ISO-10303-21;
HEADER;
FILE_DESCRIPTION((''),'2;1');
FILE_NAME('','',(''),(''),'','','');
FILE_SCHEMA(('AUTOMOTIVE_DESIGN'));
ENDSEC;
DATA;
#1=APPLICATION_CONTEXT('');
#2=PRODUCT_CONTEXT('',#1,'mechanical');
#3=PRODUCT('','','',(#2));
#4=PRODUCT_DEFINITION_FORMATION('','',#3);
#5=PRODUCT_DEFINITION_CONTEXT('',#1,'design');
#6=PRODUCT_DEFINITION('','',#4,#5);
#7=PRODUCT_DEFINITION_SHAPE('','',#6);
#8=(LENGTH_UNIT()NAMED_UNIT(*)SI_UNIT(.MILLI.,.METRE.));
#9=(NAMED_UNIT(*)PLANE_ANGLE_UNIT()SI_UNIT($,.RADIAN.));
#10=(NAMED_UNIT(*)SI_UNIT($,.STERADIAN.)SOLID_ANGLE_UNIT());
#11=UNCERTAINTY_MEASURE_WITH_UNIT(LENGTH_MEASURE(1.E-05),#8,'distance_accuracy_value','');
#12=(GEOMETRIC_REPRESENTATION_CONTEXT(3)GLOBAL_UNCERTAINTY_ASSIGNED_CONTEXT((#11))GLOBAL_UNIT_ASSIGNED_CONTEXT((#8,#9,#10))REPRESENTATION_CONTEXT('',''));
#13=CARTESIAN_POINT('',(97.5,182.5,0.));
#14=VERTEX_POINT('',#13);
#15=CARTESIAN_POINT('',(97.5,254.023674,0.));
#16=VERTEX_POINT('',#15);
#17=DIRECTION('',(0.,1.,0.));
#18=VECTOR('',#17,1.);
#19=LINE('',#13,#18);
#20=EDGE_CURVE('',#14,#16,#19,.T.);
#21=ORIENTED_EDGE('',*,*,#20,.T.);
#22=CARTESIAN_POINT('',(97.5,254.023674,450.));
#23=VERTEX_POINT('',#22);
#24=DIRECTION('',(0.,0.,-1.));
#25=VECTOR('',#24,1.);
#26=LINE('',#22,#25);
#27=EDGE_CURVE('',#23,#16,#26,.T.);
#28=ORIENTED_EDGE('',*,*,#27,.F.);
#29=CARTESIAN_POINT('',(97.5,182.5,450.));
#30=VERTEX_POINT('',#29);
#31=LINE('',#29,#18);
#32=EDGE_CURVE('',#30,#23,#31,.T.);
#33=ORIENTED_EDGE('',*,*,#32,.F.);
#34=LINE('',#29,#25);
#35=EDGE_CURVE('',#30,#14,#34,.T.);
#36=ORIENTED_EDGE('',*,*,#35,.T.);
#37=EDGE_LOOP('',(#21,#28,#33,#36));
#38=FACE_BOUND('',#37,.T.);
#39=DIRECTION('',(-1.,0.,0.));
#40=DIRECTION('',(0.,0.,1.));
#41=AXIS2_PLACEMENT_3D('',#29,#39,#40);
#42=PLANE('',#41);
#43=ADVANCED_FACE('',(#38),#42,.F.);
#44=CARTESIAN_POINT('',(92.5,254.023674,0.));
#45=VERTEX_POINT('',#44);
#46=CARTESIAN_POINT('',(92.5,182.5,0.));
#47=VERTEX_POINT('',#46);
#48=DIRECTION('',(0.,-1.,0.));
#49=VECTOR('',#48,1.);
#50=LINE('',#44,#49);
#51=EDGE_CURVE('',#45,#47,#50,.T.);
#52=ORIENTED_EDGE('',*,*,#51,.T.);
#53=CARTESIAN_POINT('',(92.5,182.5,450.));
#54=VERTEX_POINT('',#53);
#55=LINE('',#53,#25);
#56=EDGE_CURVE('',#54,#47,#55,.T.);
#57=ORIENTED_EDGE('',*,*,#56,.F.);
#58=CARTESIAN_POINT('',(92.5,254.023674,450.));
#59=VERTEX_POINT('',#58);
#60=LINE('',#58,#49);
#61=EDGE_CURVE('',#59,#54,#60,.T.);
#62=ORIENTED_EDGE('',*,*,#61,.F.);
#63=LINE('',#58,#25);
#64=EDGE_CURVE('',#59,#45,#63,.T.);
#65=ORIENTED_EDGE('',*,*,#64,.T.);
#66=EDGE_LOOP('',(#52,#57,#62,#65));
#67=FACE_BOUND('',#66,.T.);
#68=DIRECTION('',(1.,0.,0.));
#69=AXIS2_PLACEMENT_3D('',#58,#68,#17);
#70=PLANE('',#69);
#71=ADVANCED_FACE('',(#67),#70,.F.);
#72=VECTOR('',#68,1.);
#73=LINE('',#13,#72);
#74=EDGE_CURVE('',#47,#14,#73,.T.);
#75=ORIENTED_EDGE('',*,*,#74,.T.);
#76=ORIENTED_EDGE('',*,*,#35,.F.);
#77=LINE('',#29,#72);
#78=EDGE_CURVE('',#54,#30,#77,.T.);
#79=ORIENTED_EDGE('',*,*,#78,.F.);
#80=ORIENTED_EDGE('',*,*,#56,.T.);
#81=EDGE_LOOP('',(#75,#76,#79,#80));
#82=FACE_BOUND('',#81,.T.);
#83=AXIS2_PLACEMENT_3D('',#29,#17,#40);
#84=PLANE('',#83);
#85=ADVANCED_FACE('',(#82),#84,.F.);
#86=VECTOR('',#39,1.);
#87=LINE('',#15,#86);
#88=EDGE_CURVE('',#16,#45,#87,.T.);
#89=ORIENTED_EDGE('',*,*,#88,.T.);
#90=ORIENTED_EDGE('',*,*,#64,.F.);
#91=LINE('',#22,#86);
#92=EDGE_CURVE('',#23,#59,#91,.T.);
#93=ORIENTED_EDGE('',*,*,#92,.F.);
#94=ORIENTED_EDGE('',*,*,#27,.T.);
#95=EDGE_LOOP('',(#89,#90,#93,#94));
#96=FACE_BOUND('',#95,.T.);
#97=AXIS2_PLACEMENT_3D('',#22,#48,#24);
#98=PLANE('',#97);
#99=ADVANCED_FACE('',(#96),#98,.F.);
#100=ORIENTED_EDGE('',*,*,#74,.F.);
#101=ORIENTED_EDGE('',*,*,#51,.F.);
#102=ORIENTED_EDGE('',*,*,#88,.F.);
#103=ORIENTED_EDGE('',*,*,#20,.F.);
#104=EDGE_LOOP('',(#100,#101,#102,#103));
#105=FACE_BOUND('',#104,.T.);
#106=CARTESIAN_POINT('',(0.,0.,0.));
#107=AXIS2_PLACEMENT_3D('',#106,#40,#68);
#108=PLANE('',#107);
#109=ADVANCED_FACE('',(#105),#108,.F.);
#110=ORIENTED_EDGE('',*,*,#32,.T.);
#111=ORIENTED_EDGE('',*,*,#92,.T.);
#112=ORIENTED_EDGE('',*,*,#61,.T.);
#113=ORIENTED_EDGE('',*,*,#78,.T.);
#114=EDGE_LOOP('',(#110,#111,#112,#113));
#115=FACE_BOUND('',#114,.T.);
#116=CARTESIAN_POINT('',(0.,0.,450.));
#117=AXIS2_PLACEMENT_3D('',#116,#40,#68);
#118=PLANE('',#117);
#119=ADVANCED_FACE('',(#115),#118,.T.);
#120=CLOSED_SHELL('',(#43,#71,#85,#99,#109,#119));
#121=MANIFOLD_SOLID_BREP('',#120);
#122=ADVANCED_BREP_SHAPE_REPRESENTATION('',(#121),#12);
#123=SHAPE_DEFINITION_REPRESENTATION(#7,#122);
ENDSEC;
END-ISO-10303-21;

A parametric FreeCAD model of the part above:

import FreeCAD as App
import Part
import Sketcher
Q = App.Units.Quantity


def add_polygon(sketch, points):
    """Adds a closed chain of lines whose ends are joined by coincident constraints."""
    first, n = sketch.GeometryCount, len(points)
    for a, b in zip(points, points[1:] + points[:1]):
        sketch.addGeometry(Part.LineSegment(App.Vector(*a, 0), App.Vector(*b, 0)), False)
    for i in range(n):
        sketch.addConstraint(Sketcher.Constraint("Coincident", first + i, 2, first + (i + 1) % n, 1))

doc = App.newDocument("Part")
body = doc.addObject("PartDesign::Body", "Body")

# Sketch on XY plane
sketch1 = doc.addObject("Sketcher::SketchObject", "Sketch")
body.addObject(sketch1)
sketch1.AttachmentSupport = (doc.XY_Plane, [""])
sketch1.MapMode = "FlatFace"
add_polygon(sketch1, [(92.5, 254.023674), (92.5, 182.5), (97.5, 182.5), (97.5, 254.023674)])  # lines 0-3
sketch1.addConstraint([
    Sketcher.Constraint("Vertical", 0),
    Sketcher.Constraint("Horizontal", 1),
    Sketcher.Constraint("Vertical", 2),
    Sketcher.Constraint("Horizontal", 3),
    Sketcher.Constraint("DistanceX", 1, 1, 1, 2, Q("5 mm")),
    Sketcher.Constraint("DistanceX", -1, 1, 0, 2, Q("92.5 mm")),
    Sketcher.Constraint("DistanceY", -1, 1, 0, 2, Q("182.5 mm")),
    Sketcher.Constraint("DistanceY", 0, 2, 0, 1, Q("71.523674 mm")),
])
pad1 = doc.addObject("PartDesign::Pad", "Pad")
body.addObject(pad1)
pad1.Profile = sketch1
pad1.Length = 450

doc.recompute()
